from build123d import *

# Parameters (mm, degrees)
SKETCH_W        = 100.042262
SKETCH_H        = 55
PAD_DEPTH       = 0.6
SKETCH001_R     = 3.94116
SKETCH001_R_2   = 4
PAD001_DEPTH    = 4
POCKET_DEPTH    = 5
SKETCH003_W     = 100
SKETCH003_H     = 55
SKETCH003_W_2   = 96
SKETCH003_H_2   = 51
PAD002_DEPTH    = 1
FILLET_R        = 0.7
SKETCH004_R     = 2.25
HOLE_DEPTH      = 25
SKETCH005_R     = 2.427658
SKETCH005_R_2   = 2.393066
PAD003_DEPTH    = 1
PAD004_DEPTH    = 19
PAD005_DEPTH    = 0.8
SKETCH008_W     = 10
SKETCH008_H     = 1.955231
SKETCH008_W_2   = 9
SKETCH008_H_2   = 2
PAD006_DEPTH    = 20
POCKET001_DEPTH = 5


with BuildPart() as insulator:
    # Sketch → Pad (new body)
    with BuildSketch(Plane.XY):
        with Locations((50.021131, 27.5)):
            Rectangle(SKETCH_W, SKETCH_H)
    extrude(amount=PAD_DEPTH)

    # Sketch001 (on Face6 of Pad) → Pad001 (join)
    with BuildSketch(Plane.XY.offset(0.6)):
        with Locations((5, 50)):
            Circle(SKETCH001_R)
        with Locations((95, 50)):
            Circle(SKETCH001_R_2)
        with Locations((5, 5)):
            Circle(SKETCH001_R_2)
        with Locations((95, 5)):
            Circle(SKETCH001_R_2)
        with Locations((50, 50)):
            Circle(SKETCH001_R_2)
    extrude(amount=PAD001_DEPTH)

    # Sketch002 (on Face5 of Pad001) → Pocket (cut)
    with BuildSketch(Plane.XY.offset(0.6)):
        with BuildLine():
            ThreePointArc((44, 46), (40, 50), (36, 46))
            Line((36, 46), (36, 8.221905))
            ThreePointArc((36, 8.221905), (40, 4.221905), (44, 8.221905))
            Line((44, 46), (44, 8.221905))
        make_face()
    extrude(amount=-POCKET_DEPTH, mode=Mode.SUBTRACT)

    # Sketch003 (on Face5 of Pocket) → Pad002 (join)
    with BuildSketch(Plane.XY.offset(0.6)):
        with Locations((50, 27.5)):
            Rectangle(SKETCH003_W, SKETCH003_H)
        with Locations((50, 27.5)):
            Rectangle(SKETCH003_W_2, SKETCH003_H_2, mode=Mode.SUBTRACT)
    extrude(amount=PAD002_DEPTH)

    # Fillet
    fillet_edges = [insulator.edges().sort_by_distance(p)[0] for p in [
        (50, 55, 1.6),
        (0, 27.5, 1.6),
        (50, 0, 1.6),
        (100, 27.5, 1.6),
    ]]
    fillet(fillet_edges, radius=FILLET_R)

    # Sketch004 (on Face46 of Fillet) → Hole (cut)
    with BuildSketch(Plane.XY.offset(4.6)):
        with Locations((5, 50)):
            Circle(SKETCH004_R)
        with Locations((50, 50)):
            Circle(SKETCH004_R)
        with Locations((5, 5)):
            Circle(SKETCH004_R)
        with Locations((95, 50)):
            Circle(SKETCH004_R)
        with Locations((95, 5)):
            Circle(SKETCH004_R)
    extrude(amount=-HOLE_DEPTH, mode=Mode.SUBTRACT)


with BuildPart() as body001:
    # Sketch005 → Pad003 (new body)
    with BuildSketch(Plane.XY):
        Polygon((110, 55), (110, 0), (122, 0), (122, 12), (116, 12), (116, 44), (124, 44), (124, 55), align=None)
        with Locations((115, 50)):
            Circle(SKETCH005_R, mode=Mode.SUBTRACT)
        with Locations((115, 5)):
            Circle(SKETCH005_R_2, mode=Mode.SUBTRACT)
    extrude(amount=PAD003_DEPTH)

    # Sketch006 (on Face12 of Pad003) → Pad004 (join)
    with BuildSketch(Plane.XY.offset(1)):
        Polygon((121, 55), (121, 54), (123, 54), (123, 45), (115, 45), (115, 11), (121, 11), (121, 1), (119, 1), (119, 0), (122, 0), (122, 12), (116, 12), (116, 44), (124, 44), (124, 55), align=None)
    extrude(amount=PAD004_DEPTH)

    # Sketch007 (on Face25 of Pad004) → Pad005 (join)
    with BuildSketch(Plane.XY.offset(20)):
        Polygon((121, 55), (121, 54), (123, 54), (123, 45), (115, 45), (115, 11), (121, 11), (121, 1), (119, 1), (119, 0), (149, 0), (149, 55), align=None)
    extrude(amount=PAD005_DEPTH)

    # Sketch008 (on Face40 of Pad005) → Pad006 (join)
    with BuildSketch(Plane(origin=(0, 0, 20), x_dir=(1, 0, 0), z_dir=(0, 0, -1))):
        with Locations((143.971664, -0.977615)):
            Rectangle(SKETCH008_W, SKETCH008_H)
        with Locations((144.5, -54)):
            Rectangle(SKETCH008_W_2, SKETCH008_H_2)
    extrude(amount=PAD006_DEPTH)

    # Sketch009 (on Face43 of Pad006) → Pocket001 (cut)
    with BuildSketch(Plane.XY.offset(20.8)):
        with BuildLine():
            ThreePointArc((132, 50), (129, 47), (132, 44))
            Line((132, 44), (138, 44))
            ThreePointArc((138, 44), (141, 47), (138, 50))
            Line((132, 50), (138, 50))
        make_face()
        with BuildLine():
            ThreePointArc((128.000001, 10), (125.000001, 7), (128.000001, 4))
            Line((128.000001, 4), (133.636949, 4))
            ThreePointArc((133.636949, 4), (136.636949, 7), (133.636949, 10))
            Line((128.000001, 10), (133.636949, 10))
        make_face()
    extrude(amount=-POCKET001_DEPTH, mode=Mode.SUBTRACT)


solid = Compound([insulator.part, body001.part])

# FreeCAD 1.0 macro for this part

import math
import FreeCAD as App
import Part
import Sketcher
Q = App.Units.Quantity


def edges_at(feature, points):
    """Names of the edges that pass closest to the given points."""
    edges = feature.Shape.Edges
    near = lambda p: min(range(len(edges)), key=lambda i: edges[i].distToShape(Part.Vertex(*p))[0])
    return sorted({f"Edge{near(p) + 1}" for p in points})


def add_polygon(sketch, points):
    """Adds a closed chain of lines whose ends are joined by coincident constraints."""
    first, n = sketch.GeometryCount, len(points)
    for a, b in zip(points, points[1:] + points[:1]):
        sketch.addGeometry(Part.LineSegment(App.Vector(*a, 0), App.Vector(*b, 0)), False)
    for i in range(n):
        sketch.addConstraint(Sketcher.Constraint("Coincident", first + i, 2, first + (i + 1) % n, 1))

doc = App.newDocument("Part")
body = doc.addObject("PartDesign::Body", "Body")

# Sketch on XY plane
sketch1 = body.newObject("Sketcher::SketchObject", "Sketch")
sketch1.AttachmentSupport = (doc.getObject("XY_Plane"), [""])
sketch1.MapMode = "FlatFace"
add_polygon(sketch1, [(0, 55), (0, 0), (100, 0), (100, 55)])  # lines 0-3
sketch1.addConstraint([
    Sketcher.Constraint("Vertical", 0),
    Sketcher.Constraint("Horizontal", 1),
    Sketcher.Constraint("Vertical", 2),
    Sketcher.Constraint("Horizontal", 3),
    Sketcher.Constraint("Coincident", 0, 2, -1, 1),
    Sketcher.Constraint("DistanceY", 0, 2, 0, 1, Q("55 mm")),
    Sketcher.Constraint("DistanceX", 1, 1, 1, 2, Q("100.042262 mm")),
])
pad1 = body.newObject("PartDesign::Pad", "Pad")
pad1.Profile = sketch1
pad1.Length = 0.6

# Sketch on XY plane
sketch2 = body.newObject("Sketcher::SketchObject", "Sketch001")
sketch2.AttachmentSupport = (doc.getObject("XY_Plane"), [""])
sketch2.MapMode = "FlatFace"
sketch2.AttachmentOffset = App.Placement(App.Vector(0, 0, 0.6), App.Rotation())
sketch2.addGeometry([
    Part.Circle(App.Vector(5, 50, 0), App.Vector(0, 0, 1), 3.9),  # 0
    Part.Circle(App.Vector(95, 50, 0), App.Vector(0, 0, 1), 4),  # 1
    Part.Circle(App.Vector(5, 5, 0), App.Vector(0, 0, 1), 4),  # 2
    Part.Circle(App.Vector(95, 5, 0), App.Vector(0, 0, 1), 4),  # 3
    Part.Circle(App.Vector(50, 50, 0), App.Vector(0, 0, 1), 4),  # 4
], False)
sketch2.addConstraint([
    Sketcher.Constraint("Equal", 1, 2),
    Sketcher.Constraint("Equal", 2, 3),
    Sketcher.Constraint("Equal", 3, 4),
    Sketcher.Constraint("Horizontal", 0, 3, 1, 3),
    Sketcher.Constraint("Horizontal", 2, 3, 3, 3),
    Sketcher.Constraint("Horizontal", 1, 3, 4, 3),
    Sketcher.Constraint("Vertical", 0, 3, 2, 3),
    Sketcher.Constraint("Vertical", 1, 3, 3, 3),
    Sketcher.Constraint("Diameter", 1, Q("8 mm")),
    Sketcher.Constraint("DistanceX", -1, 1, 0, 3, Q("5 mm")),
    Sketcher.Constraint("DistanceY", -1, 1, 0, 3, Q("50 mm")),
    Sketcher.Constraint("DistanceX", -1, 1, 1, 3, Q("95 mm")),
    Sketcher.Constraint("DistanceY", -1, 1, 2, 3, Q("5 mm")),
    Sketcher.Constraint("DistanceX", -1, 1, 4, 3, Q("50 mm")),
    Sketcher.Constraint("Diameter", 0, Q("7.88232 mm")),
])
pad2 = body.newObject("PartDesign::Pad", "Pad001")
pad2.Profile = sketch2
pad2.Length = 4

# Sketch on XY plane
sketch3 = body.newObject("Sketcher::SketchObject", "Sketch002")
sketch3.AttachmentSupport = (doc.getObject("XY_Plane"), [""])
sketch3.MapMode = "FlatFace"
sketch3.AttachmentOffset = App.Placement(App.Vector(0, 0, 0.6), App.Rotation())
sketch3.addGeometry([
    Part.ArcOfCircle(Part.Circle(App.Vector(40, 46, 0), App.Vector(0, 0, 1), 4), math.radians(0), math.radians(180)),
    Part.LineSegment(App.Vector(36, 46, 0), App.Vector(36, 8.2, 0)),
    Part.ArcOfCircle(Part.Circle(App.Vector(40, 8.2, 0), App.Vector(0, 0, 1), 4), math.radians(180), math.radians(360)),
    Part.LineSegment(App.Vector(44, 8.2, 0), App.Vector(44, 46, 0)),
], False)
sketch3.addConstraint([
    Sketcher.Constraint("Tangent", 0, 2, 1, 1),
    Sketcher.Constraint("Tangent", 1, 2, 2, 1),
    Sketcher.Constraint("Tangent", 2, 2, 3, 1),
    Sketcher.Constraint("Tangent", 3, 2, 0, 1),
    Sketcher.Constraint("Vertical", 1),
    Sketcher.Constraint("Vertical", 3),
    Sketcher.Constraint("Radius", 0, Q("4 mm")),
    Sketcher.Constraint("DistanceX", -1, 1, 0, 3, Q("40 mm")),
    Sketcher.Constraint("DistanceY", -1, 1, 0, 3, Q("46 mm")),
    Sketcher.Constraint("DistanceY", 1, 2, 1, 1, Q("37.778095 mm")),
])
pocket1 = body.newObject("PartDesign::Pocket", "Pocket")
pocket1.Profile = sketch3
pocket1.Length = 5

# Sketch on XY plane
sketch4 = body.newObject("Sketcher::SketchObject", "Sketch003")
sketch4.AttachmentSupport = (doc.getObject("XY_Plane"), [""])
sketch4.MapMode = "FlatFace"
sketch4.AttachmentOffset = App.Placement(App.Vector(0, 0, 0.6), App.Rotation())
add_polygon(sketch4, [(0, 55), (0, 0), (100, 0), (100, 55)])  # lines 0-3
add_polygon(sketch4, [(98, 2), (2, 2), (2, 53), (98, 53)])  # lines 4-7
sketch4.addConstraint([
    Sketcher.Constraint("Vertical", 0),
    Sketcher.Constraint("Horizontal", 1),
    Sketcher.Constraint("Vertical", 2),
    Sketcher.Constraint("Horizontal", 3),
    Sketcher.Constraint("Horizontal", 4),
    Sketcher.Constraint("Vertical", 5),
    Sketcher.Constraint("Horizontal", 6),
    Sketcher.Constraint("Vertical", 7),
    Sketcher.Constraint("Coincident", 0, 2, -1, 1),
    Sketcher.Constraint("DistanceX", 1, 1, 1, 2, Q("100 mm")),
    Sketcher.Constraint("DistanceX", 4, 2, 4, 1, Q("96 mm")),
    Sketcher.Constraint("DistanceY", 0, 2, 0, 1, Q("55 mm")),
    Sketcher.Constraint("DistanceY", 5, 1, 5, 2, Q("51 mm")),
    Sketcher.Constraint("DistanceX", -1, 1, 4, 2, Q("2 mm")),
    Sketcher.Constraint("DistanceY", -1, 1, 4, 2, Q("2 mm")),
])
pad3 = body.newObject("PartDesign::Pad", "Pad002")
pad3.Profile = sketch4
pad3.Length = 1
doc.recompute()

fillet = body.newObject("PartDesign::Fillet", "Fillet")
fillet.Base = (pad3, edges_at(pad3, [
    (50, 55, 1.6),
    (0, 27.5, 1.6),
    (50, 0, 1.6),
    (100, 27.5, 1.6),
]))
fillet.Radius = 0.7

# Sketch on XY plane
sketch5 = body.newObject("Sketcher::SketchObject", "Sketch004")
sketch5.AttachmentSupport = (doc.getObject("XY_Plane"), [""])
sketch5.MapMode = "FlatFace"
sketch5.AttachmentOffset = App.Placement(App.Vector(0, 0, 4.6), App.Rotation())
sketch5.addGeometry([
    Part.Circle(App.Vector(5, 50, 0), App.Vector(0, 0, 1), 2.2),  # 0
    Part.Circle(App.Vector(50, 50, 0), App.Vector(0, 0, 1), 2.2),  # 1
    Part.Circle(App.Vector(5, 5, 0), App.Vector(0, 0, 1), 2.2),  # 2
    Part.Circle(App.Vector(95, 50, 0), App.Vector(0, 0, 1), 2.2),  # 3
    Part.Circle(App.Vector(95, 5, 0), App.Vector(0, 0, 1), 2.2),  # 4
], False)
sketch5.addConstraint([
    Sketcher.Constraint("Equal", 0, 1),
    Sketcher.Constraint("Equal", 1, 2),
    Sketcher.Constraint("Equal", 2, 3),
    Sketcher.Constraint("Equal", 3, 4),
    Sketcher.Constraint("Horizontal", 0, 3, 1, 3),
    Sketcher.Constraint("Horizontal", 1, 3, 3, 3),
    Sketcher.Constraint("Horizontal", 2, 3, 4, 3),
    Sketcher.Constraint("Vertical", 0, 3, 2, 3),
    Sketcher.Constraint("Vertical", 3, 3, 4, 3),
    Sketcher.Constraint("Diameter", 0, Q("4.5 mm")),
    Sketcher.Constraint("DistanceX", -1, 1, 0, 3, Q("5 mm")),
    Sketcher.Constraint("DistanceY", -1, 1, 0, 3, Q("50 mm")),
    Sketcher.Constraint("DistanceX", -1, 1, 1, 3, Q("50 mm")),
    Sketcher.Constraint("DistanceY", -1, 1, 2, 3, Q("5 mm")),
    Sketcher.Constraint("DistanceX", -1, 1, 3, 3, Q("95 mm")),
])
pocket2 = body.newObject("PartDesign::Pocket", "Pocket001")
pocket2.Profile = sketch5
pocket2.Length = 25
body2 = doc.addObject("PartDesign::Body", "Body001")

# Sketch on XY plane
sketch6 = body2.newObject("Sketcher::SketchObject", "Sketch005")
sketch6.AttachmentSupport = (doc.getObject("XY_Plane001"), [""])
sketch6.MapMode = "FlatFace"
add_polygon(sketch6, [(110, 55), (110, 0), (122, 0), (122, 12), (116, 12), (116, 44), (124, 44), (124, 55)])  # lines 0-7
sketch6.addGeometry(Part.Circle(App.Vector(115, 5, 0), App.Vector(0, 0, 1), 2.4), False)  # 8
sketch6.addGeometry(Part.Circle(App.Vector(115, 50, 0), App.Vector(0, 0, 1), 2.4), False)  # 9
sketch6.addConstraint([
    Sketcher.Constraint("Vertical", 0),
    Sketcher.Constraint("Horizontal", 1),
    Sketcher.Constraint("Vertical", 2),
    Sketcher.Constraint("Horizontal", 3),
    Sketcher.Constraint("Vertical", 4),
    Sketcher.Constraint("Horizontal", 5),
    Sketcher.Constraint("Vertical", 6),
    Sketcher.Constraint("Horizontal", 7),
    Sketcher.Constraint("PointOnObject", 0, 2, -1),
    Sketcher.Constraint("Vertical", 8, 3, 9, 3),
    Sketcher.Constraint("Equal", 1, 2),
    Sketcher.Constraint("DistanceX", 1, 1, 1, 2, Q("12 mm")),
    Sketcher.Constraint("DistanceX", 3, 2, 3, 1, Q("6 mm")),
    Sketcher.Constraint("DistanceX", 5, 1, 5, 2, Q("8 mm")),
    Sketcher.Constraint("DistanceY", 0, 2, 0, 1, Q("55 mm")),
    Sketcher.Constraint("DistanceY", 4, 1, 4, 2, Q("32 mm")),
    Sketcher.Constraint("DistanceX", -1, 1, 8, 3, Q("115 mm")),
    Sketcher.Constraint("DistanceY", -1, 1, 8, 3, Q("5 mm")),
    Sketcher.Constraint("DistanceY", -1, 1, 9, 3, Q("50 mm")),
    Sketcher.Constraint("DistanceX", -1, 1, 0, 2, Q("110 mm")),
    Sketcher.Constraint("Diameter", 8, Q("4.786132 mm")),
    Sketcher.Constraint("Diameter", 9, Q("4.855316 mm")),
])
pad4 = body2.newObject("PartDesign::Pad", "Pad003")
pad4.Profile = sketch6
pad4.Length = 1

# Sketch on XY plane
sketch7 = body2.newObject("Sketcher::SketchObject", "Sketch006")
sketch7.AttachmentSupport = (doc.getObject("XY_Plane001"), [""])
sketch7.MapMode = "FlatFace"
sketch7.AttachmentOffset = App.Placement(App.Vector(0, 0, 1), App.Rotation())
add_polygon(sketch7, [(121, 55), (121, 54), (123, 54), (123, 45), (115, 45), (115, 11), (121, 11), (121, 1), (119, 1), (119, 0), (122, 0), (122, 12), (116, 12), (116, 44), (124, 44), (124, 55)])  # lines 0-15
sketch7.addConstraint([
    Sketcher.Constraint("Vertical", 0),
    Sketcher.Constraint("Horizontal", 1),
    Sketcher.Constraint("Vertical", 2),
    Sketcher.Constraint("Horizontal", 3),
    Sketcher.Constraint("Vertical", 4),
    Sketcher.Constraint("Horizontal", 5),
    Sketcher.Constraint("Vertical", 6),
    Sketcher.Constraint("Horizontal", 7),
    Sketcher.Constraint("Vertical", 8),
    Sketcher.Constraint("Horizontal", 9),
    Sketcher.Constraint("Vertical", 10),
    Sketcher.Constraint("Horizontal", 11),
    Sketcher.Constraint("Vertical", 12),
    Sketcher.Constraint("Horizontal", 13),
    Sketcher.Constraint("Vertical", 14),
    Sketcher.Constraint("Horizontal", 15),
    Sketcher.Constraint("PointOnObject", 8, 2, -1),
    Sketcher.Constraint("Vertical", 0, 2, 5, 2),
    Sketcher.Constraint("Equal", 1, 7),
    Sketcher.Constraint("Equal", 5, 11),
    Sketcher.Constraint("Equal", 3, 13),
    Sketcher.Constraint("Equal", 0, 8),
    Sketcher.Constraint("DistanceX", 1, 1, 1, 2, Q("2 mm")),
    Sketcher.Constraint("DistanceX", 3, 2, 3, 1, Q("8 mm")),
    Sketcher.Constraint("DistanceX", 9, 1, 9, 2, Q("3 mm")),
    Sketcher.Constraint("DistanceY", 0, 2, 0, 1, Q("1 mm")),
    Sketcher.Constraint("DistanceY", 2, 2, 2, 1, Q("9 mm")),
    Sketcher.Constraint("DistanceY", 4, 2, 4, 1, Q("34 mm")),
    Sketcher.Constraint("DistanceY", 6, 2, 6, 1, Q("10 mm")),
    Sketcher.Constraint("DistanceY", 10, 1, 10, 2, Q("12 mm")),
    Sketcher.Constraint("DistanceY", 12, 1, 12, 2, Q("32 mm")),
    Sketcher.Constraint("DistanceX", -1, 1, 0, 2, Q("121 mm")),
])
pad5 = body2.newObject("PartDesign::Pad", "Pad004")
pad5.Profile = sketch7
pad5.Length = 19

# Sketch on XY plane
sketch8 = body2.newObject("Sketcher::SketchObject", "Sketch007")
sketch8.AttachmentSupport = (doc.getObject("XY_Plane001"), [""])
sketch8.MapMode = "FlatFace"
sketch8.AttachmentOffset = App.Placement(App.Vector(0, 0, 20), App.Rotation())
add_polygon(sketch8, [(121, 55), (121, 54), (123, 54), (123, 45), (115, 45), (115, 11), (121, 11), (121, 1), (119, 1), (119, 0), (149, 0), (149, 55)])  # lines 0-11
sketch8.addConstraint([
    Sketcher.Constraint("Vertical", 0),
    Sketcher.Constraint("Horizontal", 1),
    Sketcher.Constraint("Vertical", 2),
    Sketcher.Constraint("Horizontal", 3),
    Sketcher.Constraint("Vertical", 4),
    Sketcher.Constraint("Horizontal", 5),
    Sketcher.Constraint("Vertical", 6),
    Sketcher.Constraint("Horizontal", 7),
    Sketcher.Constraint("Vertical", 8),
    Sketcher.Constraint("Horizontal", 9),
    Sketcher.Constraint("Vertical", 10),
    Sketcher.Constraint("Horizontal", 11),
    Sketcher.Constraint("PointOnObject", 8, 2, -1),
    Sketcher.Constraint("Vertical", 0, 2, 5, 2),
    Sketcher.Constraint("Equal", 1, 7),
    Sketcher.Constraint("Equal", 0, 8),
    Sketcher.Constraint("DistanceX", 1, 1, 1, 2, Q("2 mm")),
    Sketcher.Constraint("DistanceX", 3, 2, 3, 1, Q("8 mm")),
    Sketcher.Constraint("DistanceX", 9, 1, 9, 2, Q("30 mm")),
    Sketcher.Constraint("DistanceY", 0, 2, 0, 1, Q("1 mm")),
    Sketcher.Constraint("DistanceY", 2, 2, 2, 1, Q("9 mm")),
    Sketcher.Constraint("DistanceY", 4, 2, 4, 1, Q("34 mm")),
    Sketcher.Constraint("DistanceY", 6, 2, 6, 1, Q("10 mm")),
    Sketcher.Constraint("DistanceX", -1, 1, 0, 2, Q("121 mm")),
])
pad6 = body2.newObject("PartDesign::Pad", "Pad005")
pad6.Profile = sketch8
pad6.Length = 0.8

# Sketch on XY plane
sketch9 = body2.newObject("Sketcher::SketchObject", "Sketch008")
sketch9.AttachmentSupport = (doc.getObject("XY_Plane001"), [""])
sketch9.MapMode = "FlatFace"
sketch9.AttachmentOffset = App.Placement(App.Vector(0, 0, 20), App.Rotation())
add_polygon(sketch9, [(139, 0), (139, 2), (149, 2), (149, 0)])  # lines 0-3
add_polygon(sketch9, [(140, 53), (140, 55), (149, 55), (149, 53)])  # lines 4-7
sketch9.addConstraint([
    Sketcher.Constraint("Vertical", 0),
    Sketcher.Constraint("Horizontal", 1),
    Sketcher.Constraint("Vertical", 2),
    Sketcher.Constraint("Horizontal", 3),
    Sketcher.Constraint("Vertical", 4),
    Sketcher.Constraint("Horizontal", 5),
    Sketcher.Constraint("Vertical", 6),
    Sketcher.Constraint("Horizontal", 7),
    Sketcher.Constraint("PointOnObject", 2, 2, -1),
    Sketcher.Constraint("DistanceX", 1, 1, 1, 2, Q("10 mm")),
    Sketcher.Constraint("DistanceX", 5, 1, 5, 2, Q("9 mm")),
    Sketcher.Constraint("DistanceY", 4, 1, 4, 2, Q("2 mm")),
    Sketcher.Constraint("DistanceX", -1, 1, 4, 2, Q("140 mm")),
    Sketcher.Constraint("DistanceY", -1, 1, 4, 2, Q("55 mm")),
    Sketcher.Constraint("DistanceY", 0, 1, 0, 2, Q("1.955231 mm")),
    Sketcher.Constraint("DistanceX", -1, 1, 0, 2, Q("138.971664 mm")),
])
pad7 = body2.newObject("PartDesign::Pad", "Pad006")
pad7.Profile = sketch9
pad7.Length = 20
pad7.Reversed = True

# Sketch on XY plane
sketch10 = body2.newObject("Sketcher::SketchObject", "Sketch009")
sketch10.AttachmentSupport = (doc.getObject("XY_Plane001"), [""])
sketch10.MapMode = "FlatFace"
sketch10.AttachmentOffset = App.Placement(App.Vector(0, 0, 20.8), App.Rotation())
sketch10.addGeometry([
    Part.ArcOfCircle(Part.Circle(App.Vector(132, 47, 0), App.Vector(0, 0, 1), 3), math.radians(90), math.radians(270)),  # 0
    Part.LineSegment(App.Vector(132, 44, 0), App.Vector(138, 44, 0)),  # 1
    Part.ArcOfCircle(Part.Circle(App.Vector(138, 47, 0), App.Vector(0, 0, 1), 3), math.radians(-90), math.radians(90)),  # 2
    Part.LineSegment(App.Vector(138, 50, 0), App.Vector(132, 50, 0)),  # 3
    Part.ArcOfCircle(Part.Circle(App.Vector(128, 7, 0), App.Vector(0, 0, 1), 3), math.radians(90), math.radians(270)),  # 4
    Part.LineSegment(App.Vector(128, 4, 0), App.Vector(133.6, 4, 0)),  # 5
    Part.ArcOfCircle(Part.Circle(App.Vector(133.6, 7, 0), App.Vector(0, 0, 1), 3), math.radians(-90), math.radians(90)),  # 6
    Part.LineSegment(App.Vector(133.6, 10, 0), App.Vector(128, 10, 0)),  # 7
], False)
sketch10.addConstraint([
    Sketcher.Constraint("Tangent", 0, 2, 1, 1),
    Sketcher.Constraint("Tangent", 1, 2, 2, 1),
    Sketcher.Constraint("Tangent", 2, 2, 3, 1),
    Sketcher.Constraint("Tangent", 3, 2, 0, 1),
    Sketcher.Constraint("Tangent", 4, 2, 5, 1),
    Sketcher.Constraint("Tangent", 5, 2, 6, 1),
    Sketcher.Constraint("Tangent", 6, 2, 7, 1),
    Sketcher.Constraint("Tangent", 7, 2, 4, 1),
    Sketcher.Constraint("Horizontal", 1),
    Sketcher.Constraint("Horizontal", 3),
    Sketcher.Constraint("Horizontal", 5),
    Sketcher.Constraint("Horizontal", 7),
    Sketcher.Constraint("Equal", 2, 4),
    Sketcher.Constraint("Radius", 0, Q("3 mm")),
    Sketcher.Constraint("DistanceX", 1, 1, 1, 2, Q("6 mm")),
    Sketcher.Constraint("DistanceX", -1, 1, 0, 3, Q("132 mm")),
    Sketcher.Constraint("DistanceY", -1, 1, 0, 3, Q("47 mm")),
    Sketcher.Constraint("DistanceX", -1, 1, 4, 3, Q("128.000001 mm")),
    Sketcher.Constraint("DistanceY", -1, 1, 4, 3, Q("7 mm")),
    Sketcher.Constraint("DistanceX", 5, 1, 5, 2, Q("5.636948 mm")),
])
pocket3 = body2.newObject("PartDesign::Pocket", "Pocket002")
pocket3.Profile = sketch10
pocket3.Length = 5

doc.recompute()
